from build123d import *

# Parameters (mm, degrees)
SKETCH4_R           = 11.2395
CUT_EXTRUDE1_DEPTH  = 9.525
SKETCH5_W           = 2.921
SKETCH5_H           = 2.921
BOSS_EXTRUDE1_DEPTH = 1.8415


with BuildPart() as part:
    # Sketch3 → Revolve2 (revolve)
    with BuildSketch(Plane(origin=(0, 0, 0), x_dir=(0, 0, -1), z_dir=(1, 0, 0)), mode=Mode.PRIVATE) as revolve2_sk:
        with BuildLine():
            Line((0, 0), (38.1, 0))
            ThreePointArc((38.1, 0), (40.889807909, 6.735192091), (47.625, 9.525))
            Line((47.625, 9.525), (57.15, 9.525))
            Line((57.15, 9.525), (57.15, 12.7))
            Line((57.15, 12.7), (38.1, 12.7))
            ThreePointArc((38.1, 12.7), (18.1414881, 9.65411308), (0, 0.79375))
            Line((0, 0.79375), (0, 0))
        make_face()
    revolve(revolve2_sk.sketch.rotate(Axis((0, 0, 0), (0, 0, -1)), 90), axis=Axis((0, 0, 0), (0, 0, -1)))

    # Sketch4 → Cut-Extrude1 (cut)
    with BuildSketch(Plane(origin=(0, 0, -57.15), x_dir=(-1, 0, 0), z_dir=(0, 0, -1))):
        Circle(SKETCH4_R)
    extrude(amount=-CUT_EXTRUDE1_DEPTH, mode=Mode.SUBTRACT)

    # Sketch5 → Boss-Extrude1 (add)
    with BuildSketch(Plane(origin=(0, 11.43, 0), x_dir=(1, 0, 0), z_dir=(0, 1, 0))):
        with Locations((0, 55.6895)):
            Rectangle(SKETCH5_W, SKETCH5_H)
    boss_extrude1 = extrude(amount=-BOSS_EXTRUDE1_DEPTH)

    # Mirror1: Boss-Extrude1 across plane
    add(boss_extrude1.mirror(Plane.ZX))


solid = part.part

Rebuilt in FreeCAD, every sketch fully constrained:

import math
import FreeCAD as App
import Part
import Sketcher

V = App.Vector
Q = App.Units.Quantity

doc = App.newDocument("Part")
params = doc.addObject("Spreadsheet::Sheet", "Params")
for row, (alias, value) in enumerate([
    ("sketch1_height", "1.5 in"),
    ("sketch1_radius", "0.375 in"),
    ("sketch1_height2", "0.75 in"),
    ("sketch1_width", "0.03125 in"),
    ("revolution_angle", "360 deg"),
    ("sketch2_diameter", "0.885 in"),
    ("pocket1_length", "0.375 in"),
    ("sketch3_width", "0.115 in"),
    ("pad1_length", "0.0725 in"),
], start=1):
    params.set(f"A{row}", alias)
    params.set(f"B{row}", "=" + value)
    params.setAlias(f"B{row}", alias)

body = doc.addObject("PartDesign::Body", "Body")

# Sketch on YZ plane
sketch1 = body.newObject("Sketcher::SketchObject", "Sketch")
sketch1.AttachmentSupport = (doc.getObject("YZ_Plane"), [""])
sketch1.MapMode = "FlatFace"
sketch1.addGeometry(Part.LineSegment(V(0, 0, 0), V(0, -38.1, 0)), False)
sketch1.addGeometry(Part.ArcOfCircle(Part.Circle(V(0, -47.625, 0), V(0, 0, 1), 9.525), math.radians(0), math.radians(90)), False)
sketch1.addGeometry(Part.LineSegment(V(9.525, -47.625, 0), V(9.525, -57.15, 0)), False)
sketch1.addGeometry(Part.LineSegment(V(9.525, -57.15, 0), V(12.7, -57.15, 0)), False)
sketch1.addGeometry(Part.LineSegment(V(12.7, -57.15, 0), V(12.7, -38.1, 0)), False)
sketch1.addGeometry(Part.ArcOfCircle(Part.Circle(V(-54.213125, -38.1, 0), V(0, 0, 1), 66.913125), math.radians(0), math.radians(34.708049)), False)
sketch1.addGeometry(Part.LineSegment(V(0.79375, 0, 0), V(0, 0, 0)), False)
sketch1.addConstraint(Sketcher.Constraint("Coincident", 0, 2, 1, 2))
sketch1.addConstraint(Sketcher.Constraint("Tangent", 1, 1, 2, 1))
sketch1.addConstraint(Sketcher.Constraint("Coincident", 2, 2, 3, 1))
sketch1.addConstraint(Sketcher.Constraint("Coincident", 3, 2, 4, 1))
sketch1.addConstraint(Sketcher.Constraint("Tangent", 4, 2, 5, 1))
sketch1.addConstraint(Sketcher.Constraint("Coincident", 5, 2, 6, 1))
sketch1.addConstraint(Sketcher.Constraint("Coincident", 6, 2, 0, 1))
sketch1.addConstraint(Sketcher.Constraint("Vertical", 0))
sketch1.addConstraint(Sketcher.Constraint("Vertical", 2))
sketch1.addConstraint(Sketcher.Constraint("Horizontal", 3))
sketch1.addConstraint(Sketcher.Constraint("Vertical", 4))
sketch1.addConstraint(Sketcher.Constraint("Horizontal", 6))
sketch1.addConstraint(Sketcher.Constraint("Coincident", 6, 2, -1, 1))
sketch1.addConstraint(Sketcher.Constraint("PointOnObject", 1, 3, -2))
sketch1.addConstraint(Sketcher.Constraint("Horizontal", 5, 3, 0, 2))
sketch1.addConstraint(Sketcher.Constraint("DistanceY", 0, 2, 0, 1, Q("1.5 in")))
sketch1.addConstraint(Sketcher.Constraint("Radius", 1, Q("0.375 in")))
sketch1.addConstraint(Sketcher.Constraint("DistanceY", 4, 1, 4, 2, Q("0.75 in")))
sketch1.addConstraint(Sketcher.Constraint("DistanceX", -1, 1, 3, 2, Q("0.5 in")))
sketch1.addConstraint(Sketcher.Constraint("DistanceX", 6, 2, 6, 1, Q("0.03125 in")))
sketch1.setExpression("Constraints[15]", "Params.sketch1_height")
sketch1.setExpression("Constraints[16]", "Params.sketch1_radius")
sketch1.setExpression("Constraints[17]", "Params.sketch1_height2")
sketch1.setExpression("Constraints[19]", "Params.sketch1_width")
revolution = body.newObject("PartDesign::Revolution", "Revolution")
revolution.Profile = sketch1
revolution.ReferenceAxis = (sketch1, ["V_Axis"])
revolution.setExpression("Angle", "Params.revolution_angle")

# Sketch on XY plane
sketch2 = body.newObject("Sketcher::SketchObject", "Sketch001")
sketch2.AttachmentSupport = (doc.getObject("XY_Plane"), [""])
sketch2.MapMode = "FlatFace"
sketch2.AttachmentOffset = App.Placement(V(0, 0, -2.25 * 25.4), App.Rotation())
sketch2.addGeometry(Part.Circle(V(0, 0, 0), V(0, 0, 1), 11.2395), False)
sketch2.addConstraint(Sketcher.Constraint("Coincident", 0, 3, -1, 1))
sketch2.addConstraint(Sketcher.Constraint("Diameter", 0, Q("0.885 in")))
sketch2.setExpression("Constraints[1]", "Params.sketch2_diameter")
pocket1 = body.newObject("PartDesign::Pocket", "Pocket")
pocket1.Profile = sketch2
pocket1.setExpression("Length", "Params.pocket1_length")
pocket1.Reversed = True

# Sketch on XZ plane
sketch3 = body.newObject("Sketcher::SketchObject", "Sketch002")
sketch3.AttachmentSupport = (doc.getObject("XZ_Plane"), [""])
sketch3.MapMode = "FlatFace"
sketch3.AttachmentOffset = App.Placement(V(0, 0, -0.45 * 25.4), App.Rotation())
sketch3.addGeometry(Part.LineSegment(V(-1.4605, -57.15, 0), V(-1.4605, -54.229, 0)), False)
sketch3.addGeometry(Part.LineSegment(V(-1.4605, -54.229, 0), V(1.4605, -54.229, 0)), False)
sketch3.addGeometry(Part.LineSegment(V(1.4605, -54.229, 0), V(1.4605, -57.15, 0)), False)
sketch3.addGeometry(Part.LineSegment(V(1.4605, -57.15, 0), V(-1.4605, -57.15, 0)), False)
sketch3.addConstraint(Sketcher.Constraint("Coincident", 0, 2, 1, 1))
sketch3.addConstraint(Sketcher.Constraint("Coincident", 1, 2, 2, 1))
sketch3.addConstraint(Sketcher.Constraint("Coincident", 2, 2, 3, 1))
sketch3.addConstraint(Sketcher.Constraint("Coincident", 3, 2, 0, 1))
sketch3.addConstraint(Sketcher.Constraint("Vertical", 0))
sketch3.addConstraint(Sketcher.Constraint("Horizontal", 1))
sketch3.addConstraint(Sketcher.Constraint("Vertical", 2))
sketch3.addConstraint(Sketcher.Constraint("Horizontal", 3))
sketch3.addConstraint(Sketcher.Constraint("Equal", 3, 0))
sketch3.addConstraint(Sketcher.Constraint("DistanceX", 1, 1, 1, 2, Q("0.115 in")))
sketch3.addConstraint(Sketcher.Constraint("DistanceY", 2, 2, -1, 1, Q("2.25 in")))
sketch3.addConstraint(Sketcher.Constraint("DistanceX", 0, 2, -1, 1, Q("0.0575 in")))
sketch3.setExpression("Constraints[9]", "Params.sketch3_width")
pad1 = body.newObject("PartDesign::Pad", "Pad")
pad1.Profile = sketch3
pad1.setExpression("Length", "Params.pad1_length")
doc.recompute()

mirrored = body.newObject("PartDesign::Mirrored", "Mirrored")
mirrored.Originals = [pad1]
mirrored.MirrorPlane = (doc.getObject("XZ_Plane"), [""])
body.Tip = mirrored

doc.recompute()
